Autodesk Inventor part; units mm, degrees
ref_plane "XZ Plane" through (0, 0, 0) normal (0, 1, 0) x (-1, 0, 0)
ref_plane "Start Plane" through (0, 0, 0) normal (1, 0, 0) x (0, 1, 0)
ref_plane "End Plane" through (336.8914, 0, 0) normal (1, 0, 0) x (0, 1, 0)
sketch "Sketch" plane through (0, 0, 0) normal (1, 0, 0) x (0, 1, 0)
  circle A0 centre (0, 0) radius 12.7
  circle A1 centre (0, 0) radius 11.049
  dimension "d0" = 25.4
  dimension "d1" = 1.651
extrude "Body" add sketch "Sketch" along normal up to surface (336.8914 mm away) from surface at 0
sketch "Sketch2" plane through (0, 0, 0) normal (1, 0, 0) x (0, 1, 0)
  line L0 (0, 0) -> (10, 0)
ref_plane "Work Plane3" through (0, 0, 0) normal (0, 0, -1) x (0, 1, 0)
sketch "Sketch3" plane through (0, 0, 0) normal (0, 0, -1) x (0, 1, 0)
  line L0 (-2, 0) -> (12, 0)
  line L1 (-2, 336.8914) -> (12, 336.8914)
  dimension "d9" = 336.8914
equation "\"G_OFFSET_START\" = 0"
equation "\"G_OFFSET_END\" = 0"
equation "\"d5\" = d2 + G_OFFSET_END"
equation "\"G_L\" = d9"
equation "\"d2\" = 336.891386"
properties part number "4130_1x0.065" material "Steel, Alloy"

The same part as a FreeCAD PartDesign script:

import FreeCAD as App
import Part
import Sketcher
from FreeCAD import Vector
Q = App.Units.Quantity

doc = App.newDocument("Part")
body = doc.addObject("PartDesign::Body", "Body")

sketch1 = body.newObject("Sketcher::SketchObject", "Sketch")
sketch1.AttachmentSupport = (doc.getObject("YZ_Plane"), [""])
sketch1.MapMode = "FlatFace"
sketch1.addGeometry([
    Part.Circle(Vector(0, 0, 0), Vector(0, 0, 1), 13),
    Part.Circle(Vector(0, 0, 0), Vector(0, 0, 1), 11),
], False)
sketch1.addConstraint([
    Sketcher.Constraint("Coincident", 0, 3, -1, 1),
    Sketcher.Constraint("Coincident", 1, 3, -1, 1),
    Sketcher.Constraint("Diameter", 0, Q("1 in")),
    Sketcher.Constraint("Diameter", 1, Q("0.87 in")),
])
pad1 = body.newObject("PartDesign::Pad", "Pad")
pad1.Profile = sketch1
pad1.Length = 336.8914

doc.recompute()
